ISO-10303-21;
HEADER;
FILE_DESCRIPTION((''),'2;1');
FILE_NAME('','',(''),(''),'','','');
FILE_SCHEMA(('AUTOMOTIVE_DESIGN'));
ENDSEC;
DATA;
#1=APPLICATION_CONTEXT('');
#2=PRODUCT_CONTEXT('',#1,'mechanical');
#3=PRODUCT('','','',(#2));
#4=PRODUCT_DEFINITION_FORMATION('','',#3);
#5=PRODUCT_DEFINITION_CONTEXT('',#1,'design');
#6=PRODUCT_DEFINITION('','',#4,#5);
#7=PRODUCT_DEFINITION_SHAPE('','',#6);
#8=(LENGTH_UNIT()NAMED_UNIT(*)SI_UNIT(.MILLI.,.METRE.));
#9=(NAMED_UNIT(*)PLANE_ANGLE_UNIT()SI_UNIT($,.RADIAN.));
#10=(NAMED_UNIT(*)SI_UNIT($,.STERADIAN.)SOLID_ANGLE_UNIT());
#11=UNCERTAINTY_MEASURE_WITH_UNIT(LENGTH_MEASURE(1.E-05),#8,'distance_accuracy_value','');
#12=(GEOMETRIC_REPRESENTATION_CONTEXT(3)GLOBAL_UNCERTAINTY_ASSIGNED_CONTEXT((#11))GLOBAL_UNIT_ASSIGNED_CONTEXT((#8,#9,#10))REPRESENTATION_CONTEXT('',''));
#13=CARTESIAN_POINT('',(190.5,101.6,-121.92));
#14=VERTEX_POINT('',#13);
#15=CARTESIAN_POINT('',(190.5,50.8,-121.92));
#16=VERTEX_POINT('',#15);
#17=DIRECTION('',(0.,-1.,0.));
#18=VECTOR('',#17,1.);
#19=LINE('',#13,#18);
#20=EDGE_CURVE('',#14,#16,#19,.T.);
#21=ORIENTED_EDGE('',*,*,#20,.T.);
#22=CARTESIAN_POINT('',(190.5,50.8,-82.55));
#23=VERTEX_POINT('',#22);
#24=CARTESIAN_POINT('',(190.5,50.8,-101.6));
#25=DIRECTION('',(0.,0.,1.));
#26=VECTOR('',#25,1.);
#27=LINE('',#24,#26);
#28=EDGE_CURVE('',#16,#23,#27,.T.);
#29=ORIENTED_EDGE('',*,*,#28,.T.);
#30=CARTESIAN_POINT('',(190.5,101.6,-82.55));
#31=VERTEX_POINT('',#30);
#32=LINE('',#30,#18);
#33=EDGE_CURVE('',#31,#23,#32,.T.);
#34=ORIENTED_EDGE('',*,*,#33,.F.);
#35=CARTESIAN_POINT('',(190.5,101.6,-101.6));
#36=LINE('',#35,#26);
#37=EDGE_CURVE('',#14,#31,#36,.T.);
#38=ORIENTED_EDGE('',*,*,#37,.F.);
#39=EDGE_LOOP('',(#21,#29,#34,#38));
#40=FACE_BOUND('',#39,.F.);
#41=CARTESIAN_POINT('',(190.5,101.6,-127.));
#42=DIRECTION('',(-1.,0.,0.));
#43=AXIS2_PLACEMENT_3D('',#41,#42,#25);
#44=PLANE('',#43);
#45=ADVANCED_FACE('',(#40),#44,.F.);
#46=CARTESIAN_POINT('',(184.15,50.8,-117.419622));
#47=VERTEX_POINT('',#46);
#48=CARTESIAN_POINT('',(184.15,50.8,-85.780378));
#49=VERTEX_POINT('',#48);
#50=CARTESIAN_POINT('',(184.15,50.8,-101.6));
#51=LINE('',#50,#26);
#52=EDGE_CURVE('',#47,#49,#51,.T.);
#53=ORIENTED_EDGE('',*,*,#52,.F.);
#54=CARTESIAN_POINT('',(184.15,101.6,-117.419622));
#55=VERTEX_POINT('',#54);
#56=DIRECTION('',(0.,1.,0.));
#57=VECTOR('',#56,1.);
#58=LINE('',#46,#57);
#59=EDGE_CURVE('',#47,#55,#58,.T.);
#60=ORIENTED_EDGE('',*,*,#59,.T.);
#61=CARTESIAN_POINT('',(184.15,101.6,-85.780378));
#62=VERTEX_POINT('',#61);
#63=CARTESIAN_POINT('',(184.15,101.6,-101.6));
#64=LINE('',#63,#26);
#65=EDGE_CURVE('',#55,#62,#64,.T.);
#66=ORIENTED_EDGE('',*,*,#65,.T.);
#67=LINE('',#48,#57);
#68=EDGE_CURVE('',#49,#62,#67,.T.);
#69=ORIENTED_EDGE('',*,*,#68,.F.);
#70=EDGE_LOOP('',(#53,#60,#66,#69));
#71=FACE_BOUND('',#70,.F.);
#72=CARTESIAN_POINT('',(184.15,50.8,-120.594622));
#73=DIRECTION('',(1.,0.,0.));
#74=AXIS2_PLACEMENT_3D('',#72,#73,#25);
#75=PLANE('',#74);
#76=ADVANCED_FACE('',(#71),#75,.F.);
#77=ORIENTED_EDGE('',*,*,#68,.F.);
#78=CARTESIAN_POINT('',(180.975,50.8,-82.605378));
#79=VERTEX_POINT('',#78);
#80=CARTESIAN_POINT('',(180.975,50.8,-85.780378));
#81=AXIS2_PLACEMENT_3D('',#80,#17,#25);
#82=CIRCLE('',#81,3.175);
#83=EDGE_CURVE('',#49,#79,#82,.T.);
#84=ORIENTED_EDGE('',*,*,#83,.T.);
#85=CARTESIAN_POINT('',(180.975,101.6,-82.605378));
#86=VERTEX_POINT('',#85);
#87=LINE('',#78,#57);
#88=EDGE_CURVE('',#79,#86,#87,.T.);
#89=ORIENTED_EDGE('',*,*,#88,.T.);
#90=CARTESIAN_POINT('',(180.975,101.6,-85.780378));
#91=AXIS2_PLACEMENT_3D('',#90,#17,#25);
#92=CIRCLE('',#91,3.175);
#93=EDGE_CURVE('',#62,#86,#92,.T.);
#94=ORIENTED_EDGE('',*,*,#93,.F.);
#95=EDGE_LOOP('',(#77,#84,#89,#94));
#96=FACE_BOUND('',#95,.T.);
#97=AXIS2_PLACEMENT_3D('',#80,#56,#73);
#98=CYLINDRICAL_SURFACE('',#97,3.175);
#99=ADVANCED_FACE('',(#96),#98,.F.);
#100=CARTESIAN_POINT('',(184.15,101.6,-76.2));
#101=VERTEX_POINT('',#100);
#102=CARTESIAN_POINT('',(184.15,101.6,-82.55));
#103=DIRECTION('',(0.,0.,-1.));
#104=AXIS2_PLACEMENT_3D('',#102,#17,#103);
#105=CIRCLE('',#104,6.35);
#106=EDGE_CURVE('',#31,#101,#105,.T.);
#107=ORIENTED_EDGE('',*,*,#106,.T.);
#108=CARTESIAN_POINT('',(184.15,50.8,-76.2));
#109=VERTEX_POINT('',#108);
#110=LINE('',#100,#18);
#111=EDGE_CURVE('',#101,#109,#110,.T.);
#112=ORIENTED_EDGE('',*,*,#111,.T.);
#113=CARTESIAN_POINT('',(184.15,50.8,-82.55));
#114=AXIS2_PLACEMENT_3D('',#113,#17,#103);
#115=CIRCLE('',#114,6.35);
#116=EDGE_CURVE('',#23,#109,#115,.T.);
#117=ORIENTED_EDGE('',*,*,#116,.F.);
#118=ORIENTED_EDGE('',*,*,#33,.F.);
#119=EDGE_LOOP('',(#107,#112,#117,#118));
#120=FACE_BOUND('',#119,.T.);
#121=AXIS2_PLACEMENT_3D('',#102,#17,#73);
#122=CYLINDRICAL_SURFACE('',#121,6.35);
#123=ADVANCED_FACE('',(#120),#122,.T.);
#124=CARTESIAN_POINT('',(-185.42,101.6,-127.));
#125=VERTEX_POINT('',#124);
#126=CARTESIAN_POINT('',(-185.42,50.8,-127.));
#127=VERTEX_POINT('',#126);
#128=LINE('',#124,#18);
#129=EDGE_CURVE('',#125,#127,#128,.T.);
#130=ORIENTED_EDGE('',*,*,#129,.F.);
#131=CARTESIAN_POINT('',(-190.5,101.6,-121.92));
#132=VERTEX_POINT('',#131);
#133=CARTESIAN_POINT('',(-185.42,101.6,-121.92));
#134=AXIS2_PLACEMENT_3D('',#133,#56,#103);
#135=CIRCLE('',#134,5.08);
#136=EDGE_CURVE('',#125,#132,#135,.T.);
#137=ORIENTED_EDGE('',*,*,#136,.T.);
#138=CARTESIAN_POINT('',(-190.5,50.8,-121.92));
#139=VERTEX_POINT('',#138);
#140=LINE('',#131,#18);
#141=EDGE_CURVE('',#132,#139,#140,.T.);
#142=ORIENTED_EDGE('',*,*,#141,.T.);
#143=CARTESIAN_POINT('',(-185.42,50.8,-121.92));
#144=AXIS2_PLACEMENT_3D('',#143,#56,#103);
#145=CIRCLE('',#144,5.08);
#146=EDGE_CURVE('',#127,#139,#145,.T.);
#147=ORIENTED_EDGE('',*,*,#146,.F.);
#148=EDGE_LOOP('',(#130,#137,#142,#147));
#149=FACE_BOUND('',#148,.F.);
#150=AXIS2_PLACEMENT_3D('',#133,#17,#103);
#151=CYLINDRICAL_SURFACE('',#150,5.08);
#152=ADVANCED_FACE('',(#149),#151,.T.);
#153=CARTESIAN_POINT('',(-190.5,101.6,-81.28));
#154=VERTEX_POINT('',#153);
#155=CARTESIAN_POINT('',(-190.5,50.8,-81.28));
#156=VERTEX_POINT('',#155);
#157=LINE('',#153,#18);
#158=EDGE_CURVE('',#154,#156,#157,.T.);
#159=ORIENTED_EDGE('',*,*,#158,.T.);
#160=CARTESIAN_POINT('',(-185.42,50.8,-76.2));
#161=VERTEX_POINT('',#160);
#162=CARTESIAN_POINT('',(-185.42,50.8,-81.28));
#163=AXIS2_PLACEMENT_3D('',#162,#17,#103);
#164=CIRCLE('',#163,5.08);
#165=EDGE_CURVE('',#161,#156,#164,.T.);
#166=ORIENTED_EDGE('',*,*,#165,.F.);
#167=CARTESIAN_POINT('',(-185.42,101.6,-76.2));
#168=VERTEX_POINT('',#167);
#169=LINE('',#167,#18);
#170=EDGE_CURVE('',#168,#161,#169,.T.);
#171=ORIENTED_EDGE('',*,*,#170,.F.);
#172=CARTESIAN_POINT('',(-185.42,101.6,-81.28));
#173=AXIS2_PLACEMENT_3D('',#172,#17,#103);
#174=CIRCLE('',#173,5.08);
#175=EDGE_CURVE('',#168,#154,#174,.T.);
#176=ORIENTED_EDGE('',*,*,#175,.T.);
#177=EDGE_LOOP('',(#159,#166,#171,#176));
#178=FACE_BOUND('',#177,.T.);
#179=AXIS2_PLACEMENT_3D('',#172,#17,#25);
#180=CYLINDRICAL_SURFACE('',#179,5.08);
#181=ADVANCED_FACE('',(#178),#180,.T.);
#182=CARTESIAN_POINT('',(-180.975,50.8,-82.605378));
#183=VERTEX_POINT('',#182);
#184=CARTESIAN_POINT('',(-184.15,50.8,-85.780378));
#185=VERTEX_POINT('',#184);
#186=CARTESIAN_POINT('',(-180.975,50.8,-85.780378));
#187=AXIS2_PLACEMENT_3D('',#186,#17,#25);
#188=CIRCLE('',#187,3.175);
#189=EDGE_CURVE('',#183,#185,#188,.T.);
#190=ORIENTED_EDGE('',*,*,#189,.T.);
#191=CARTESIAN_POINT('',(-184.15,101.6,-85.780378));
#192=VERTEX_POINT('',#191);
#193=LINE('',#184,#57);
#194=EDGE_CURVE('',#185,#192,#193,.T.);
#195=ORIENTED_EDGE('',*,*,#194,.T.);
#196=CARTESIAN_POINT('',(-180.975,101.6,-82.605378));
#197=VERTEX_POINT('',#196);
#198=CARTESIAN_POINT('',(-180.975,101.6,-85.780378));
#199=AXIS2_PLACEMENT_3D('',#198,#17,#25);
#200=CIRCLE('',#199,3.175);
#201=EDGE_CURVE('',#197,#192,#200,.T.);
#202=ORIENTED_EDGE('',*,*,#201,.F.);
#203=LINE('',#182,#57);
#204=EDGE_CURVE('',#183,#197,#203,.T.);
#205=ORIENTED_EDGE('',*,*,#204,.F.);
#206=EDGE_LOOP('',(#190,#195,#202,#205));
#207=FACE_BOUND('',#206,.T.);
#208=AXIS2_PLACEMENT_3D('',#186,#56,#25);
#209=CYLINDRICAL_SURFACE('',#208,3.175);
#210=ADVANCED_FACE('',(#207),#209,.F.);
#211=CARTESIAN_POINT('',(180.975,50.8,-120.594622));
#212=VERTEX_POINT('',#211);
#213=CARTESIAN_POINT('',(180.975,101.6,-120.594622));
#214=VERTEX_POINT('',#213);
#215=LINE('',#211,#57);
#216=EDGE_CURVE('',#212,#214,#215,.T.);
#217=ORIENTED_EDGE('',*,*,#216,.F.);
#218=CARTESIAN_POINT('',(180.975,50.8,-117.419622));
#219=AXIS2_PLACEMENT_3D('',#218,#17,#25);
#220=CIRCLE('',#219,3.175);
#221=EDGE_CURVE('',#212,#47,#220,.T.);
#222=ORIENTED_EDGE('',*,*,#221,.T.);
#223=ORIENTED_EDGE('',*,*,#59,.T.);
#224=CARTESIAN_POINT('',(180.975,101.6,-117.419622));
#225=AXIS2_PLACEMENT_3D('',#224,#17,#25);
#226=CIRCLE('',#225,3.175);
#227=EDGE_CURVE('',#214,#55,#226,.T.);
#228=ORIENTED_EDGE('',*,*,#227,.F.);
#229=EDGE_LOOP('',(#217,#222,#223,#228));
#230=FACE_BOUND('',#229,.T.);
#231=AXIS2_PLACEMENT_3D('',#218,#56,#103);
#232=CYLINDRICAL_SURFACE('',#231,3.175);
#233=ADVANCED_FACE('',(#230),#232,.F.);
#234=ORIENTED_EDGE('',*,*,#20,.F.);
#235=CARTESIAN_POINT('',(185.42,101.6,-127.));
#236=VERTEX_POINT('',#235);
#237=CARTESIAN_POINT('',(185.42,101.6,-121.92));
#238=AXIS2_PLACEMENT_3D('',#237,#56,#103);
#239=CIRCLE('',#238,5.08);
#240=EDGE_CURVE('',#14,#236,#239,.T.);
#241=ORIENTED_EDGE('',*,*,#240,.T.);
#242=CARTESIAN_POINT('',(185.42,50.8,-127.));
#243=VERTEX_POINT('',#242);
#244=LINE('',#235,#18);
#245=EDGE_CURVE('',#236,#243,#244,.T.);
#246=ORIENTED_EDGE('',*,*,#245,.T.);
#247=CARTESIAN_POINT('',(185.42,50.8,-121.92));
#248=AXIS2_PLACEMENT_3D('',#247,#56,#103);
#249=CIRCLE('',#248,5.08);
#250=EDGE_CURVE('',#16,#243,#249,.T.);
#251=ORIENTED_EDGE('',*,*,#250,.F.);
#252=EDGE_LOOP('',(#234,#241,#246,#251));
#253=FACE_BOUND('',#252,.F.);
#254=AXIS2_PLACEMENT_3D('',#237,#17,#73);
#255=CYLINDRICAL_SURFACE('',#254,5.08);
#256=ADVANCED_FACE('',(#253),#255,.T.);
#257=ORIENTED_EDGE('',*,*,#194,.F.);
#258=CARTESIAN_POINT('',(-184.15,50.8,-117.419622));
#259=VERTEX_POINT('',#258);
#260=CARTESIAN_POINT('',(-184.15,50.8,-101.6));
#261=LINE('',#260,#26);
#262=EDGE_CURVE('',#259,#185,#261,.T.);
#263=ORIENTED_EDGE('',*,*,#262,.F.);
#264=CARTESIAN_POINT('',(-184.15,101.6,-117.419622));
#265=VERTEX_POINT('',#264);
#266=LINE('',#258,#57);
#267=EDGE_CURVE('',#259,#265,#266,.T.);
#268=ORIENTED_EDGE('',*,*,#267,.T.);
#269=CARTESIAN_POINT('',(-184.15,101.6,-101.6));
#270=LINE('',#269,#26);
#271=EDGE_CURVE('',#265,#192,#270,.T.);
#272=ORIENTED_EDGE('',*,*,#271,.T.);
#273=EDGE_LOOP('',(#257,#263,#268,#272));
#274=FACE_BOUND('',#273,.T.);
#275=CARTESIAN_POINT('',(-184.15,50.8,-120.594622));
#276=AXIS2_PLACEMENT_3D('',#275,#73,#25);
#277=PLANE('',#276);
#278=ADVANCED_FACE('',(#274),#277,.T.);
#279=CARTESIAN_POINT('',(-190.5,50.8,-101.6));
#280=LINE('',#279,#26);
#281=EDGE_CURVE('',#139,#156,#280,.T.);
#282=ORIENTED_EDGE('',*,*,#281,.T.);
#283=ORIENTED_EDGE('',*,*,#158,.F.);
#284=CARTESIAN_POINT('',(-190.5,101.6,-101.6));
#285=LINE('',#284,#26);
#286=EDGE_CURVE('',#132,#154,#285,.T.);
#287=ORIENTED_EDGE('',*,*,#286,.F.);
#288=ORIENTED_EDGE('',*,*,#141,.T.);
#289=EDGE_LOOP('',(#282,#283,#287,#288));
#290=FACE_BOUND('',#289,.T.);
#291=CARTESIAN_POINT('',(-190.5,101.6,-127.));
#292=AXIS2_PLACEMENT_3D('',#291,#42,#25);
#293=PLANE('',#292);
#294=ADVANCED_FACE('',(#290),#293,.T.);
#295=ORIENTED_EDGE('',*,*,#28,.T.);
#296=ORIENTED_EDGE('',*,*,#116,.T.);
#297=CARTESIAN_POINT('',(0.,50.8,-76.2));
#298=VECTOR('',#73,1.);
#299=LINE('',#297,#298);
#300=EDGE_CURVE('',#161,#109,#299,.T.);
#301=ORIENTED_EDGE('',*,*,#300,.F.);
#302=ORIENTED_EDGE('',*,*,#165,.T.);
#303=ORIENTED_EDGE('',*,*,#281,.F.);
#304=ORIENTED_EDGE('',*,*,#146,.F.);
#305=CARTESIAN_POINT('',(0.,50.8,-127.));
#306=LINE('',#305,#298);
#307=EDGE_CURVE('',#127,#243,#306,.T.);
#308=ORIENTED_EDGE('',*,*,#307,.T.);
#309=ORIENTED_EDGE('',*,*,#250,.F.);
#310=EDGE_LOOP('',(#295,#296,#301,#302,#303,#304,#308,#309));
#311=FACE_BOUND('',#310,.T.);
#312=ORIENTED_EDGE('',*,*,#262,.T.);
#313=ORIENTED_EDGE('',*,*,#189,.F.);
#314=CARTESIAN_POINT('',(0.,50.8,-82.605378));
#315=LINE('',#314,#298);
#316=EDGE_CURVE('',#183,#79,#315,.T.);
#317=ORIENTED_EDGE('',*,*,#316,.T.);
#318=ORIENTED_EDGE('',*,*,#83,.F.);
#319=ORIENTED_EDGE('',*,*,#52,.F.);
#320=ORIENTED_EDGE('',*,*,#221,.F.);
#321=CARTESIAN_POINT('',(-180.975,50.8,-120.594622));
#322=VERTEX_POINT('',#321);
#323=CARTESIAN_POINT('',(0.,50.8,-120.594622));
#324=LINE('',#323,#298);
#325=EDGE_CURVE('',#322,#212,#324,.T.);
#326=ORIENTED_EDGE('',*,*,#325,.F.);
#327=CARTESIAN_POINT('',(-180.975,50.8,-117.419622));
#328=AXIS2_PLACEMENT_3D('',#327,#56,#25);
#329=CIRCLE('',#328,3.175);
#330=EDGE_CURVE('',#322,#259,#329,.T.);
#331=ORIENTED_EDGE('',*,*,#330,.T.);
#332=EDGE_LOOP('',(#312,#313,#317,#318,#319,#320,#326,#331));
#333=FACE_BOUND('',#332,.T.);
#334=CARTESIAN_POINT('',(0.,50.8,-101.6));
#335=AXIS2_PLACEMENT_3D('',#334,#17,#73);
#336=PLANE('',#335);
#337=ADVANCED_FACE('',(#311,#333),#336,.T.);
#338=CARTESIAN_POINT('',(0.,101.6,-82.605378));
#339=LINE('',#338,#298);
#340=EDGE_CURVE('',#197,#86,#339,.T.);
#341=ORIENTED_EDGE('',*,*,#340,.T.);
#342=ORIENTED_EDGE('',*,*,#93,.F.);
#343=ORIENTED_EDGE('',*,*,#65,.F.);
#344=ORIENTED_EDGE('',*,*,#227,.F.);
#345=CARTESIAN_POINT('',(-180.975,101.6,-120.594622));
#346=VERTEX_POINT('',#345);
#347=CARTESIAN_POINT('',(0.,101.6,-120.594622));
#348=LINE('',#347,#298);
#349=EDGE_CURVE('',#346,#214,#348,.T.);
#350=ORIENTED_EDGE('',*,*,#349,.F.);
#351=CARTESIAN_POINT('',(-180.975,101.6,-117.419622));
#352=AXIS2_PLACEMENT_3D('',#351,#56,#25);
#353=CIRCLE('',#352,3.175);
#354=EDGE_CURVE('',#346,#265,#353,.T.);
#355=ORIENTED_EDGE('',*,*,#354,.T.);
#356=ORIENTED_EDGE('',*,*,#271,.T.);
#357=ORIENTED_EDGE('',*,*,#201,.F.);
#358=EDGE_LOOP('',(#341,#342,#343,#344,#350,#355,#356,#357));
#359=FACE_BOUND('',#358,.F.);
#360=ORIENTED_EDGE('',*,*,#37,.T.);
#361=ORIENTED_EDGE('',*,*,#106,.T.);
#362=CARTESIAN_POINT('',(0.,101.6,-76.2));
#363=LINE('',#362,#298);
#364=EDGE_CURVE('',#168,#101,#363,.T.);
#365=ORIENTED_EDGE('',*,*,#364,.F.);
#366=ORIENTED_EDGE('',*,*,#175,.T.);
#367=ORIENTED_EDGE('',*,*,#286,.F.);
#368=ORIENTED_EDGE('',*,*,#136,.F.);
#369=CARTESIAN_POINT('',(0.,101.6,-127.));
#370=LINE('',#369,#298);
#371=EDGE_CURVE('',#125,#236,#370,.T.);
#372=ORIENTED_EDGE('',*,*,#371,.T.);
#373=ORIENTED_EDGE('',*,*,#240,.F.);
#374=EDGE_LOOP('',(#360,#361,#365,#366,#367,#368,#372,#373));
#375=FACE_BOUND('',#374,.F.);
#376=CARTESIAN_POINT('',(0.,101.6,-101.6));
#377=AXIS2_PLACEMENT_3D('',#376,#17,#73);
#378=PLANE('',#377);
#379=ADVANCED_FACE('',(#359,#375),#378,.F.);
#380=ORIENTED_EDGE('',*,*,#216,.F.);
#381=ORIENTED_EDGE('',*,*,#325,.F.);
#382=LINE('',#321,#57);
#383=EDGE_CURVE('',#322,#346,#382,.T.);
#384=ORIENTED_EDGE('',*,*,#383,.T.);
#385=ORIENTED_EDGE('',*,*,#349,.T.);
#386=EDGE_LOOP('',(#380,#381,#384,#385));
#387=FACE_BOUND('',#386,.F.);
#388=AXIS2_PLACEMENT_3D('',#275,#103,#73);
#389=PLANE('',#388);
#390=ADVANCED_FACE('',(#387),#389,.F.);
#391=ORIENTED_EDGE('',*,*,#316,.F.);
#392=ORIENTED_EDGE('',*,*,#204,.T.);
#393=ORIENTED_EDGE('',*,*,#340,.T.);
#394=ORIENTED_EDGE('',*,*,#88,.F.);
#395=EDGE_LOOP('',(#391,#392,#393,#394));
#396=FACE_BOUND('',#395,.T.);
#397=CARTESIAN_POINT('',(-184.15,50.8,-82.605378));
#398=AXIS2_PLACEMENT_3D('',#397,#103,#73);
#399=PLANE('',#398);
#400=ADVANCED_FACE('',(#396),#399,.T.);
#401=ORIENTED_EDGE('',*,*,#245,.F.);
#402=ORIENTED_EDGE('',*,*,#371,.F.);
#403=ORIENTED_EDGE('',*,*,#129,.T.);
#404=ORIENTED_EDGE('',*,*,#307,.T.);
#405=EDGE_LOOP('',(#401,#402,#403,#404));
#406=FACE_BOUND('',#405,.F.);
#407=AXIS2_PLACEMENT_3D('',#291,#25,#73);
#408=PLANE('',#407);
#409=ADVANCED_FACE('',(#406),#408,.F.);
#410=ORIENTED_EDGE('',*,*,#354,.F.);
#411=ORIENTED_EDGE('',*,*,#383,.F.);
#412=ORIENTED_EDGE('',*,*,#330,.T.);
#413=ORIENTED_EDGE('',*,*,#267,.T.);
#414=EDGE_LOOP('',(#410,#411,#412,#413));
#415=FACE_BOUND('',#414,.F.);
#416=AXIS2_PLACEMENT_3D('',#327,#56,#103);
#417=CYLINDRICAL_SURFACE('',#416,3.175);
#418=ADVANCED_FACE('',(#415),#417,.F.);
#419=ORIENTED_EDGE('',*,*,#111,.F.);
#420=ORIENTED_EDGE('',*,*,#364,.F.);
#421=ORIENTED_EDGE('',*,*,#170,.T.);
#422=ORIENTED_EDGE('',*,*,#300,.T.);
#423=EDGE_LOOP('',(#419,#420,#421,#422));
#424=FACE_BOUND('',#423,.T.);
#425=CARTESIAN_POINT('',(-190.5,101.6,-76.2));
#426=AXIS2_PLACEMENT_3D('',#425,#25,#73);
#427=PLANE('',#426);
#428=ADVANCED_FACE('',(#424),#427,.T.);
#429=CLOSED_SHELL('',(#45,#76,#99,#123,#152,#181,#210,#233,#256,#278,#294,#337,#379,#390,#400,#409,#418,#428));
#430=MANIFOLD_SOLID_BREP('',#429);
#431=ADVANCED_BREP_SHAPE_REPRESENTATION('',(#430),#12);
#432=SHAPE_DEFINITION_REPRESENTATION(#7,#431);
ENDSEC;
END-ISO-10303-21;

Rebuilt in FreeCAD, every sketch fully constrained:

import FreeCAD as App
import Part
import Sketcher
from FreeCAD import Vector
Q = App.Units.Quantity


def edges_at(feature, points):
    """Names of the edges that pass closest to the given points."""
    edges = feature.Shape.Edges
    near = lambda p: min(range(len(edges)), key=lambda i: edges[i].distToShape(Part.Vertex(*p))[0])
    return sorted({f"Edge{near(p) + 1}" for p in points})


def add_polygon(sketch, points):
    """Adds a closed chain of lines whose ends are joined by coincident constraints."""
    first, n = sketch.GeometryCount, len(points)
    for a, b in zip(points, points[1:] + points[:1]):
        sketch.addGeometry(Part.LineSegment(App.Vector(*a, 0), App.Vector(*b, 0)), False)
    for i in range(n):
        sketch.addConstraint(Sketcher.Constraint("Coincident", first + i, 2, first + (i + 1) % n, 1))

doc = App.newDocument("Part")
params = doc.addObject("Spreadsheet::Sheet", "Params")
for row, (alias, value) in enumerate([
    ("sketch1_width", "15 in"),
    ("sketch1_height", "2 in"),
    ("pad1_length", "2 in"),
    ("fillet_radius", "0.25 in"),
    ("fillet2_radius", "0.2 in"),
    ("sketch2_width", "14.5 in"),
    ("pocket1_length", "2 in"),
    ("fillet3_radius", "0.125 in"),
], start=1):
    params.set(f"A{row}", alias)
    params.set(f"B{row}", "=" + value)
    params.setAlias(f"B{row}", alias)

body = doc.addObject("PartDesign::Body", "Body")

# Sketch on XZ plane
sketch1 = doc.addObject("Sketcher::SketchObject", "Sketch")
body.addObject(sketch1)
sketch1.AttachmentSupport = (doc.XZ_Plane, [""])
sketch1.MapMode = "FlatFace"
add_polygon(sketch1, [(-190.5, 25.4), (-190.5, -25.4), (190.5, -25.4), (190.5, 25.4)])  # lines 0-3
sketch1.addConstraint(Sketcher.Constraint("Vertical", 0))
sketch1.addConstraint(Sketcher.Constraint("Horizontal", 1))
sketch1.addConstraint(Sketcher.Constraint("Vertical", 2))
sketch1.addConstraint(Sketcher.Constraint("Horizontal", 3))
sketch1.addConstraint(Sketcher.Constraint("Symmetric", 0, 2, 2, 2, -1, 1))
sketch1.addConstraint(Sketcher.Constraint("DistanceX", 1, 1, 1, 2, Q("15 in")))
sketch1.addConstraint(Sketcher.Constraint("DistanceY", 0, 2, 0, 1, Q("2 in")))
sketch1.setExpression("Constraints[9]", "Params.sketch1_width")
sketch1.setExpression("Constraints[10]", "Params.sketch1_height")
pad1 = doc.addObject("PartDesign::Pad", "Pad")
body.addObject(pad1)
pad1.Profile = sketch1
pad1.setExpression("Length", "Params.pad1_length")
doc.recompute()

fillet = doc.addObject("PartDesign::Fillet", "Fillet")
body.addObject(fillet)
fillet.Base = (pad1, edges_at(pad1, [(190.5, -25.4, 25.4)]))
fillet.setExpression("Radius", "Params.fillet_radius")
doc.recompute()

fillet2 = doc.addObject("PartDesign::Fillet", "Fillet001")
body.addObject(fillet2)
fillet2.Base = (fillet, edges_at(fillet, [(190.5, -25.4, -25.4), (-190.5, -25.4, 25.4), (-190.5, -25.4, -25.4)]))
fillet2.setExpression("Radius", "Params.fillet2_radius")
body2 = doc.addObject("PartDesign::Body", "Body001")
doc.recompute()

body.Placement = App.Placement(Vector(0, 50.8, 0), App.Rotation(Vector(0, 0, 1), 0))
boolean = doc.addObject("PartDesign::Boolean", "Boolean")
body2.addObject(boolean)
boolean.Type = "Fuse"
boolean.addObjects([body])

# Sketch on XZ plane
sketch2 = doc.addObject("Sketcher::SketchObject", "Sketch001")
body2.addObject(sketch2)
sketch2.AttachmentSupport = (doc.getObject("XZ_Plane001"), [""])
sketch2.MapMode = "FlatFace"
add_polygon(sketch2, [(-184.15, 18.994622), (-184.15, -18.994622), (184.15, -18.994622), (184.15, 18.994622)])  # lines 0-3
sketch2.addConstraint(Sketcher.Constraint("Vertical", 0))
sketch2.addConstraint(Sketcher.Constraint("Horizontal", 1))
sketch2.addConstraint(Sketcher.Constraint("Vertical", 2))
sketch2.addConstraint(Sketcher.Constraint("Horizontal", 3))
sketch2.addConstraint(Sketcher.Constraint("Symmetric", 0, 2, 2, 2, -1, 1))
sketch2.addConstraint(Sketcher.Constraint("DistanceX", 1, 1, 1, 2, Q("14.5 in")))
sketch2.addConstraint(Sketcher.Constraint("DistanceY", 0, 2, 0, 1, 37.989244))
sketch2.setExpression("Constraints[9]", "Params.sketch2_width")
pocket1 = doc.addObject("PartDesign::Pocket", "Pocket")
body2.addObject(pocket1)
pocket1.Profile = sketch2
pocket1.setExpression("Length", "Params.pocket1_length")
doc.recompute()

fillet3 = doc.addObject("PartDesign::Fillet", "Fillet002")
body2.addObject(fillet3)
fillet3.Base = (pocket1, edges_at(pocket1, [
    (184.15, 25.4, -18.995),
    (184.15, 25.4, 18.995),
    (-184.15, 25.4, 18.995),
    (-184.15, 25.4, -18.995),
]))
fillet3.setExpression("Radius", "Params.fillet3_radius")
body3 = doc.addObject("PartDesign::Body", "Body002")
doc.recompute()

body2.Placement = App.Placement(Vector(0, 50.8, 0), App.Rotation(Vector(0, 0, 1), 0))
boolean2 = doc.addObject("PartDesign::Boolean", "Boolean001")
body3.addObject(boolean2)
boolean2.Type = "Fuse"
boolean2.addObjects([body2])
body4 = doc.addObject("PartDesign::Body", "Body003")
doc.recompute()

body3.Placement = App.Placement(Vector(0, 0, -101.6), App.Rotation(Vector(0, 0, 1), 0))
boolean3 = doc.addObject("PartDesign::Boolean", "Boolean002")
body4.addObject(boolean3)
boolean3.Type = "Fuse"
boolean3.addObjects([body3])

doc.recompute()
